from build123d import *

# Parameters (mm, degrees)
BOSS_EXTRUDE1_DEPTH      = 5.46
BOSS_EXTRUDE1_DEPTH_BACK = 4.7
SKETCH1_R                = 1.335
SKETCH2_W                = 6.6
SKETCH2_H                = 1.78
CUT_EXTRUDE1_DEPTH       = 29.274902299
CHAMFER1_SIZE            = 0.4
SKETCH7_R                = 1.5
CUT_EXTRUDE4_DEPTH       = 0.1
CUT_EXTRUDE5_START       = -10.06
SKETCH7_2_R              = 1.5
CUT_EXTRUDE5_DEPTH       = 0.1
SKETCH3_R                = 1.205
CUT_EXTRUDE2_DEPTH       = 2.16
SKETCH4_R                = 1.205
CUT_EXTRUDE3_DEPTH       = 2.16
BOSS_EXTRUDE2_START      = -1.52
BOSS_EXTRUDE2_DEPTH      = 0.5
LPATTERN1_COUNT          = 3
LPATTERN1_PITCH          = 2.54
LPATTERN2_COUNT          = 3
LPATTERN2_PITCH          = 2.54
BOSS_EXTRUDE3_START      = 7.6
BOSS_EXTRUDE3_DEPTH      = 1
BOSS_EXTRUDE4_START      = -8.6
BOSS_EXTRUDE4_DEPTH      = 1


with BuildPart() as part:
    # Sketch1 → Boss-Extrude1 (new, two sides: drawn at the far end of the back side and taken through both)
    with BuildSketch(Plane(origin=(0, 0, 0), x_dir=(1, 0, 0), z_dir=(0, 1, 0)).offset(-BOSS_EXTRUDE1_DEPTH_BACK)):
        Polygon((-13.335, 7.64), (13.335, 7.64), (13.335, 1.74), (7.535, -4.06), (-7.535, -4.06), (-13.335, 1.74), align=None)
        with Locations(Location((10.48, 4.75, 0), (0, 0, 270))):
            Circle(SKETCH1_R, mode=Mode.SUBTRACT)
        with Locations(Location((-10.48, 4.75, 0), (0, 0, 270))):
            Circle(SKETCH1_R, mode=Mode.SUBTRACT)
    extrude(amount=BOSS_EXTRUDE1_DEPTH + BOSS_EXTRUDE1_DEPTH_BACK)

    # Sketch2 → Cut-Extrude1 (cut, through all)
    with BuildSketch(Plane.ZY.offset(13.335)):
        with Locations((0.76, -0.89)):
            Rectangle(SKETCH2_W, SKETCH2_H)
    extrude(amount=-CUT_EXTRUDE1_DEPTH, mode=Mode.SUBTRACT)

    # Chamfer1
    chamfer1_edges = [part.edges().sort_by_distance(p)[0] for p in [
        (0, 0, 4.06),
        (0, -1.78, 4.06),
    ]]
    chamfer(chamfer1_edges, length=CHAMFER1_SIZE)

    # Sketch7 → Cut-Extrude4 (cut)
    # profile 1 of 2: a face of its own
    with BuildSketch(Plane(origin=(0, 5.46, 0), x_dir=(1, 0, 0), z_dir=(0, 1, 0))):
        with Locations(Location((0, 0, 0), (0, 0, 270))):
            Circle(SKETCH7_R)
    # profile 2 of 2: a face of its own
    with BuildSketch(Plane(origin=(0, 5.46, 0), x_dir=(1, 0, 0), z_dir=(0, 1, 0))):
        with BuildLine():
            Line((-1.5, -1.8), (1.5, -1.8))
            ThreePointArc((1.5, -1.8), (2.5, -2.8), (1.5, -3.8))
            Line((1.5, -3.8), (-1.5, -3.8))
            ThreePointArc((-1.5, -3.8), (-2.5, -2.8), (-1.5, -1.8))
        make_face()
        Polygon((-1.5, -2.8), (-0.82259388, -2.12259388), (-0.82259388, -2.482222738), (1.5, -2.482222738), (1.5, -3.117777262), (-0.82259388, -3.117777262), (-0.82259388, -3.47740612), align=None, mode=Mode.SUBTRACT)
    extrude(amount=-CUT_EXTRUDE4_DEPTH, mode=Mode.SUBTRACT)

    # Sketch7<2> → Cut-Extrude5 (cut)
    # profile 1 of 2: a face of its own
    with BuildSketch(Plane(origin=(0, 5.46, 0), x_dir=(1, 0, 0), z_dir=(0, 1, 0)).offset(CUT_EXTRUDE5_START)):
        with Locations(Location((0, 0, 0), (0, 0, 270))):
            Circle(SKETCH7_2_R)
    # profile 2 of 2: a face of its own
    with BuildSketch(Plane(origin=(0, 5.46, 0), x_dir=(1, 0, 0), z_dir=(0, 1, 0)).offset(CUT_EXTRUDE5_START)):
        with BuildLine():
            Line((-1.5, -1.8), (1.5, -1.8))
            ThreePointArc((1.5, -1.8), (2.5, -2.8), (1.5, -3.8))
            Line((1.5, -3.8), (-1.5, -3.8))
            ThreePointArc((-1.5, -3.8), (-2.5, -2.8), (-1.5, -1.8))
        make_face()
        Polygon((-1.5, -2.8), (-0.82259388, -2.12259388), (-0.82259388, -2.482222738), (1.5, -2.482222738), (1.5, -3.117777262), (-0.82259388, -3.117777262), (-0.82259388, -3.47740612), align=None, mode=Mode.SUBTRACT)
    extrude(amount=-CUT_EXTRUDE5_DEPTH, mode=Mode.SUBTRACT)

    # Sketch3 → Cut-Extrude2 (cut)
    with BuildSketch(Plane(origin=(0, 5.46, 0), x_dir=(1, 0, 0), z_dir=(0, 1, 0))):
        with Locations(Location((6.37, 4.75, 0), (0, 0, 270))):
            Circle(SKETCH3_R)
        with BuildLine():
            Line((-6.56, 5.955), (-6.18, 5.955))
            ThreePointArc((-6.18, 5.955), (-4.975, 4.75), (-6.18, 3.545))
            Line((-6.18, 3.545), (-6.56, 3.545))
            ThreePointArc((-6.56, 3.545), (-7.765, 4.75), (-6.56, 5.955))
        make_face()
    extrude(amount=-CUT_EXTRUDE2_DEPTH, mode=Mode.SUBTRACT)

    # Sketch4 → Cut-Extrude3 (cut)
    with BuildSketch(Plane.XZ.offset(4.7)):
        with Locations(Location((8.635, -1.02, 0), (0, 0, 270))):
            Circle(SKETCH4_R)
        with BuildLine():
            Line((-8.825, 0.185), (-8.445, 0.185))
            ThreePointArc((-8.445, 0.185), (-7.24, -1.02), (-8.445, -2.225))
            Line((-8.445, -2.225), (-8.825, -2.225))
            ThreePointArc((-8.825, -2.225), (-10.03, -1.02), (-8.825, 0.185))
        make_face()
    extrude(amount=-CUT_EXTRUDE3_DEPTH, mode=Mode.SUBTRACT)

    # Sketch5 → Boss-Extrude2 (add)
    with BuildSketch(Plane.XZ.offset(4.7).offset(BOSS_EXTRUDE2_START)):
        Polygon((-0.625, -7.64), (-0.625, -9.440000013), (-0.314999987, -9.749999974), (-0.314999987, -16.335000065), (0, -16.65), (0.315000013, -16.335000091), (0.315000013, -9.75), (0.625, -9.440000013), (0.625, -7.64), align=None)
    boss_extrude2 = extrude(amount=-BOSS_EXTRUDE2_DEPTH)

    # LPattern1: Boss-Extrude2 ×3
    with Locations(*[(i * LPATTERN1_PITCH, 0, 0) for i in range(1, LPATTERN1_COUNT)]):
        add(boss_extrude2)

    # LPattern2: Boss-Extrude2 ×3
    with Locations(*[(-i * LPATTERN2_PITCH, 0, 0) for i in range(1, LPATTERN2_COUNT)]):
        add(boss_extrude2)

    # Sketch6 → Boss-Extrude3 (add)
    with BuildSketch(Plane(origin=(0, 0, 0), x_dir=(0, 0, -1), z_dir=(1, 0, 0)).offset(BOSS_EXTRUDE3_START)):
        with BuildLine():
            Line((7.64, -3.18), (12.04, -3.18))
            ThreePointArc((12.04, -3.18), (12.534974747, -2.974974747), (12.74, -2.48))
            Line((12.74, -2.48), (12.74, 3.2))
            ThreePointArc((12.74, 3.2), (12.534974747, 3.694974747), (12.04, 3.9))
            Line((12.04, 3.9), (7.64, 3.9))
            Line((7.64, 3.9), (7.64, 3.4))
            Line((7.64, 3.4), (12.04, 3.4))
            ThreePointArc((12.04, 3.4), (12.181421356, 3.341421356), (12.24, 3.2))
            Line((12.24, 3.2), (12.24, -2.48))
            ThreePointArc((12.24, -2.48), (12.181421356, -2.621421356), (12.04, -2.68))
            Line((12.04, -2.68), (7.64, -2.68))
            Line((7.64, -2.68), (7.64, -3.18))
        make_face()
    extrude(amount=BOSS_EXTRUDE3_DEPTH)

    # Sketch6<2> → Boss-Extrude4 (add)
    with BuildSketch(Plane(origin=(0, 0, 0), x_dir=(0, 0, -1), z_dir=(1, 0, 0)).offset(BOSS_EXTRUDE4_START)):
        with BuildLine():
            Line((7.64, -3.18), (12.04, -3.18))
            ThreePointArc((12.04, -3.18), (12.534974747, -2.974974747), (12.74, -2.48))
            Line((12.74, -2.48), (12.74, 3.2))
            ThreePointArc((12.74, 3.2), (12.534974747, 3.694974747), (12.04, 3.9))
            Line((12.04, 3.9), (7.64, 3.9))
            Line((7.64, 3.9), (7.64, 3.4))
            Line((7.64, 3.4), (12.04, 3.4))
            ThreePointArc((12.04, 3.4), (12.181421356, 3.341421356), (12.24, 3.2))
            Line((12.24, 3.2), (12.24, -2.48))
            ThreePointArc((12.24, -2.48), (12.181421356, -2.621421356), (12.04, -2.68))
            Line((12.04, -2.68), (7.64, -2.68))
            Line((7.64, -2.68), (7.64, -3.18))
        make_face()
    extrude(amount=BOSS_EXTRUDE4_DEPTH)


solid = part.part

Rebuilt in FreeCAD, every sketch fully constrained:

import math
import FreeCAD as App
import Part
import Sketcher
from FreeCAD import Vector


def edges_at(feature, points):
    """Names of the edges that pass closest to the given points."""
    edges = feature.Shape.Edges
    near = lambda p: min(range(len(edges)), key=lambda i: edges[i].distToShape(Part.Vertex(*p))[0])
    return sorted({f"Edge{near(p) + 1}" for p in points})

doc = App.newDocument("Part")
body = doc.addObject("PartDesign::Body", "Body")

# Sketch on XZ plane
sketch1 = body.newObject("Sketcher::SketchObject", "Sketch")
sketch1.AttachmentSupport = (doc.getObject("XZ_Plane"), [""])
sketch1.MapMode = "FlatFace"
sketch1.addGeometry(Part.LineSegment(Vector(13.335, -7.64, 0), Vector(-13.335, -7.64, 0)), False)
sketch1.addGeometry(Part.LineSegment(Vector(-13.335, -7.64, 0), Vector(-13.335, -1.74, 0)), False)
sketch1.addGeometry(Part.LineSegment(Vector(-13.335, -1.74, 0), Vector(-7.535, 4.06, 0)), False)
sketch1.addGeometry(Part.LineSegment(Vector(-7.535, 4.06, 0), Vector(7.535, 4.06, 0)), False)
sketch1.addGeometry(Part.LineSegment(Vector(7.535, 4.06, 0), Vector(13.335, -1.74, 0)), False)
sketch1.addGeometry(Part.LineSegment(Vector(13.335, -1.74, 0), Vector(13.335, -7.64, 0)), False)
sketch1.addGeometry(Part.Circle(Vector(10.48, -4.75, 0), Vector(0, 0, 1), 1.335), False)
sketch1.addGeometry(Part.Circle(Vector(-10.48, -4.75, 0), Vector(0, 0, 1), 1.335), False)
sketch1.addConstraint(Sketcher.Constraint("Coincident", 0, 2, 1, 1))
sketch1.addConstraint(Sketcher.Constraint("Coincident", 1, 2, 2, 1))
sketch1.addConstraint(Sketcher.Constraint("Coincident", 2, 2, 3, 1))
sketch1.addConstraint(Sketcher.Constraint("Coincident", 3, 2, 4, 1))
sketch1.addConstraint(Sketcher.Constraint("Coincident", 4, 2, 5, 1))
sketch1.addConstraint(Sketcher.Constraint("Coincident", 5, 2, 0, 1))
sketch1.addConstraint(Sketcher.Constraint("Horizontal", 0))
sketch1.addConstraint(Sketcher.Constraint("Vertical", 1))
sketch1.addConstraint(Sketcher.Constraint("Horizontal", 3))
sketch1.addConstraint(Sketcher.Constraint("Vertical", 5))
sketch1.addConstraint(Sketcher.Constraint("Equal", 6, 7))
sketch1.addConstraint(Sketcher.Constraint("Symmetric", 6, 3, 7, 3, -2))
sketch1.addConstraint(Sketcher.Constraint("Symmetric", 1, 2, 4, 2, -2))
sketch1.addConstraint(Sketcher.Constraint("Perpendicular", 2, 4))
sketch1.addConstraint(Sketcher.Constraint("Equal", 2, 4))
sketch1.addConstraint(Sketcher.Constraint("Diameter", 6, 2.67))
sketch1.addConstraint(Sketcher.Constraint("DistanceY", 1, 1, 1, 2, 5.9))
sketch1.addConstraint(Sketcher.Constraint("DistanceX", 0, 2, 0, 1, 26.67))
sketch1.addConstraint(Sketcher.Constraint("DistanceX", 3, 1, 3, 2, 15.07))
sketch1.addConstraint(Sketcher.Constraint("DistanceX", -1, 1, 6, 3, 10.48))
sketch1.addConstraint(Sketcher.Constraint("DistanceY", 6, 3, -1, 1, 4.75))
sketch1.addConstraint(Sketcher.Constraint("DistanceY", 0, 2, -1, 1, 7.64))
pad1 = body.newObject("PartDesign::Pad", "Pad")
pad1.Profile = sketch1
pad1.Type = "TwoLengths"
pad1.Length = 5.46
pad1.Length2 = 4.7
pad1.Reversed = True

# Sketch on YZ plane
sketch2 = body.newObject("Sketcher::SketchObject", "Sketch001")
sketch2.AttachmentSupport = (doc.getObject("YZ_Plane"), [""])
sketch2.MapMode = "FlatFace"
sketch2.AttachmentOffset = App.Placement(Vector(0, 0, -13.335), App.Rotation())
sketch2.addGeometry(Part.LineSegment(Vector(0, -2.54, 0), Vector(-1.78, -2.54, 0)), False)
sketch2.addGeometry(Part.LineSegment(Vector(-1.78, -2.54, 0), Vector(-1.78, 4.06, 0)), False)
sketch2.addGeometry(Part.LineSegment(Vector(-1.78, 4.06, 0), Vector(0, 4.06, 0)), False)
sketch2.addGeometry(Part.LineSegment(Vector(0, 4.06, 0), Vector(0, -2.54, 0)), False)
sketch2.addConstraint(Sketcher.Constraint("Coincident", 0, 2, 1, 1))
sketch2.addConstraint(Sketcher.Constraint("Coincident", 1, 2, 2, 1))
sketch2.addConstraint(Sketcher.Constraint("Coincident", 2, 2, 3, 1))
sketch2.addConstraint(Sketcher.Constraint("Coincident", 3, 2, 0, 1))
sketch2.addConstraint(Sketcher.Constraint("Horizontal", 0))
sketch2.addConstraint(Sketcher.Constraint("Vertical", 1))
sketch2.addConstraint(Sketcher.Constraint("Horizontal", 2))
sketch2.addConstraint(Sketcher.Constraint("Vertical", 3))
sketch2.addConstraint(Sketcher.Constraint("PointOnObject", 2, 2, -2))
sketch2.addConstraint(Sketcher.Constraint("DistanceY", 1, 1, 1, 2, 6.6))
sketch2.addConstraint(Sketcher.Constraint("DistanceX", 0, 2, 0, 1, 1.78))
sketch2.addConstraint(Sketcher.Constraint("DistanceY", 0, 2, -1, 1, 2.54))
pocket1 = body.newObject("PartDesign::Pocket", "Pocket")
pocket1.Profile = sketch2
pocket1.Type = "ThroughAll"
pocket1.Reversed = True
doc.recompute()

chamfer = body.newObject("PartDesign::Chamfer", "Chamfer")
chamfer.Base = (pocket1, edges_at(pocket1, [(0, 0, 4.06), (0, -1.78, 4.06)]))
chamfer.Size = 0.4

# Sketch on XZ plane
sketch3 = body.newObject("Sketcher::SketchObject", "Sketch002")
sketch3.AttachmentSupport = (doc.getObject("XZ_Plane"), [""])
sketch3.MapMode = "FlatFace"
sketch3.AttachmentOffset = App.Placement(Vector(0, 0, -5.46), App.Rotation())
sketch3.addGeometry(Part.Circle(Vector(0, 0, 0), Vector(0, 0, 1), 1.5), False)
sketch3.addGeometry(Part.LineSegment(Vector(1.5, 1.8, 0), Vector(-1.5, 1.8, 0)), False)
sketch3.addGeometry(Part.ArcOfCircle(Part.Circle(Vector(-1.5, 2.8, 0), Vector(0, 0, 1), 1), math.radians(90), math.radians(270)), False)
sketch3.addGeometry(Part.LineSegment(Vector(-1.5, 3.8, 0), Vector(1.5, 3.8, 0)), False)
sketch3.addGeometry(Part.ArcOfCircle(Part.Circle(Vector(1.5, 2.8, 0), Vector(0, 0, 1), 1), math.radians(-90), math.radians(90)), False)
sketch3.addGeometry(Part.LineSegment(Vector(-1.5, 2.8, 0), Vector(-0.822594, 2.122594, 0)), False)
sketch3.addGeometry(Part.LineSegment(Vector(-0.822594, 2.122594, 0), Vector(-0.822594, 2.482223, 0)), False)
sketch3.addGeometry(Part.LineSegment(Vector(-0.822594, 2.482223, 0), Vector(1.5, 2.482223, 0)), False)
sketch3.addGeometry(Part.LineSegment(Vector(1.5, 2.482223, 0), Vector(1.5, 3.117777, 0)), False)
sketch3.addGeometry(Part.LineSegment(Vector(1.5, 3.117777, 0), Vector(-0.822594, 3.117777, 0)), False)
sketch3.addGeometry(Part.LineSegment(Vector(-0.822594, 3.117777, 0), Vector(-0.822594, 3.477406, 0)), False)
sketch3.addGeometry(Part.LineSegment(Vector(-0.822594, 3.477406, 0), Vector(-1.5, 2.8, 0)), False)
sketch3.addConstraint(Sketcher.Constraint("Tangent", 1, 2, 2, 2))
sketch3.addConstraint(Sketcher.Constraint("Tangent", 2, 1, 3, 1))
sketch3.addConstraint(Sketcher.Constraint("Tangent", 3, 2, 4, 2))
sketch3.addConstraint(Sketcher.Constraint("Tangent", 4, 1, 1, 1))
sketch3.addConstraint(Sketcher.Constraint("Coincident", 5, 2, 6, 1))
sketch3.addConstraint(Sketcher.Constraint("Coincident", 6, 2, 7, 1))
sketch3.addConstraint(Sketcher.Constraint("Coincident", 7, 2, 8, 1))
sketch3.addConstraint(Sketcher.Constraint("Coincident", 8, 2, 9, 1))
sketch3.addConstraint(Sketcher.Constraint("Coincident", 9, 2, 10, 1))
sketch3.addConstraint(Sketcher.Constraint("Coincident", 10, 2, 11, 1))
sketch3.addConstraint(Sketcher.Constraint("Coincident", 11, 2, 5, 1))
sketch3.addConstraint(Sketcher.Constraint("Horizontal", 1))
sketch3.addConstraint(Sketcher.Constraint("Horizontal", 3))
sketch3.addConstraint(Sketcher.Constraint("Vertical", 6))
sketch3.addConstraint(Sketcher.Constraint("Horizontal", 7))
sketch3.addConstraint(Sketcher.Constraint("Vertical", 8))
sketch3.addConstraint(Sketcher.Constraint("Horizontal", 9))
sketch3.addConstraint(Sketcher.Constraint("Vertical", 10))
sketch3.addConstraint(Sketcher.Constraint("Coincident", 0, 3, -1, 1))
sketch3.addConstraint(Sketcher.Constraint("Coincident", 11, 2, 2, 3))
sketch3.addConstraint(Sketcher.Constraint("Perpendicular", 5, 11))
sketch3.addConstraint(Sketcher.Constraint("Vertical", 4, 1, 7, 2))
sketch3.addConstraint(Sketcher.Constraint("Vertical", 6, 2, 9, 2))
sketch3.addConstraint(Sketcher.Constraint("Equal", 6, 10))
sketch3.addConstraint(Sketcher.Constraint("Equal", 5, 11))
sketch3.addConstraint(Sketcher.Constraint("Diameter", 0, 3.0))
sketch3.addConstraint(Sketcher.Constraint("Radius", 2, 1.0))
sketch3.addConstraint(Sketcher.Constraint("DistanceX", 1, 2, 1, 1, 3.0))
sketch3.addConstraint(Sketcher.Constraint("DistanceX", 2, 3, -1, 1, 1.5))
sketch3.addConstraint(Sketcher.Constraint("DistanceY", -1, 1, 2, 3, 2.8))
sketch3.addConstraint(Sketcher.Constraint("DistanceY", 6, 1, 6, 2, 0.359629))
sketch3.addConstraint(Sketcher.Constraint("DistanceX", 7, 1, 7, 2, 2.322594))
pocket2 = body.newObject("PartDesign::Pocket", "Pocket001")
pocket2.Profile = sketch3
pocket2.Length = 0.1
pocket2.Reversed = True

# Sketch on XZ plane
sketch4 = body.newObject("Sketcher::SketchObject", "Sketch003")
sketch4.AttachmentSupport = (doc.getObject("XZ_Plane"), [""])
sketch4.MapMode = "FlatFace"
sketch4.AttachmentOffset = App.Placement(Vector(0, 0, 4.6), App.Rotation())
sketch4.addGeometry(Part.Circle(Vector(0, 0, 0), Vector(0, 0, 1), 1.5), False)
sketch4.addGeometry(Part.LineSegment(Vector(1.5, 1.8, 0), Vector(-1.5, 1.8, 0)), False)
sketch4.addGeometry(Part.ArcOfCircle(Part.Circle(Vector(-1.5, 2.8, 0), Vector(0, 0, 1), 1), math.radians(90), math.radians(270)), False)
sketch4.addGeometry(Part.LineSegment(Vector(-1.5, 3.8, 0), Vector(1.5, 3.8, 0)), False)
sketch4.addGeometry(Part.ArcOfCircle(Part.Circle(Vector(1.5, 2.8, 0), Vector(0, 0, 1), 1), math.radians(-90), math.radians(90)), False)
sketch4.addGeometry(Part.LineSegment(Vector(-1.5, 2.8, 0), Vector(-0.822594, 2.122594, 0)), False)
sketch4.addGeometry(Part.LineSegment(Vector(-0.822594, 2.122594, 0), Vector(-0.822594, 2.482223, 0)), False)
sketch4.addGeometry(Part.LineSegment(Vector(-0.822594, 2.482223, 0), Vector(1.5, 2.482223, 0)), False)
sketch4.addGeometry(Part.LineSegment(Vector(1.5, 2.482223, 0), Vector(1.5, 3.117777, 0)), False)
sketch4.addGeometry(Part.LineSegment(Vector(1.5, 3.117777, 0), Vector(-0.822594, 3.117777, 0)), False)
sketch4.addGeometry(Part.LineSegment(Vector(-0.822594, 3.117777, 0), Vector(-0.822594, 3.477406, 0)), False)
sketch4.addGeometry(Part.LineSegment(Vector(-0.822594, 3.477406, 0), Vector(-1.5, 2.8, 0)), False)
sketch4.addConstraint(Sketcher.Constraint("Tangent", 1, 2, 2, 2))
sketch4.addConstraint(Sketcher.Constraint("Tangent", 2, 1, 3, 1))
sketch4.addConstraint(Sketcher.Constraint("Tangent", 3, 2, 4, 2))
sketch4.addConstraint(Sketcher.Constraint("Tangent", 4, 1, 1, 1))
sketch4.addConstraint(Sketcher.Constraint("Coincident", 5, 2, 6, 1))
sketch4.addConstraint(Sketcher.Constraint("Coincident", 6, 2, 7, 1))
sketch4.addConstraint(Sketcher.Constraint("Coincident", 7, 2, 8, 1))
sketch4.addConstraint(Sketcher.Constraint("Coincident", 8, 2, 9, 1))
sketch4.addConstraint(Sketcher.Constraint("Coincident", 9, 2, 10, 1))
sketch4.addConstraint(Sketcher.Constraint("Coincident", 10, 2, 11, 1))
sketch4.addConstraint(Sketcher.Constraint("Coincident", 11, 2, 5, 1))
sketch4.addConstraint(Sketcher.Constraint("Horizontal", 1))
sketch4.addConstraint(Sketcher.Constraint("Horizontal", 3))
sketch4.addConstraint(Sketcher.Constraint("Vertical", 6))
sketch4.addConstraint(Sketcher.Constraint("Horizontal", 7))
sketch4.addConstraint(Sketcher.Constraint("Vertical", 8))
sketch4.addConstraint(Sketcher.Constraint("Horizontal", 9))
sketch4.addConstraint(Sketcher.Constraint("Vertical", 10))
sketch4.addConstraint(Sketcher.Constraint("Coincident", 0, 3, -1, 1))
sketch4.addConstraint(Sketcher.Constraint("Coincident", 11, 2, 2, 3))
sketch4.addConstraint(Sketcher.Constraint("Perpendicular", 5, 11))
sketch4.addConstraint(Sketcher.Constraint("Vertical", 4, 1, 7, 2))
sketch4.addConstraint(Sketcher.Constraint("Vertical", 6, 2, 9, 2))
sketch4.addConstraint(Sketcher.Constraint("Equal", 6, 10))
sketch4.addConstraint(Sketcher.Constraint("Equal", 5, 11))
sketch4.addConstraint(Sketcher.Constraint("Diameter", 0, 3.0))
sketch4.addConstraint(Sketcher.Constraint("Radius", 2, 1.0))
sketch4.addConstraint(Sketcher.Constraint("DistanceX", 1, 2, 1, 1, 3.0))
sketch4.addConstraint(Sketcher.Constraint("DistanceX", 2, 3, -1, 1, 1.5))
sketch4.addConstraint(Sketcher.Constraint("DistanceY", -1, 1, 2, 3, 2.8))
sketch4.addConstraint(Sketcher.Constraint("DistanceY", 6, 1, 6, 2, 0.359629))
sketch4.addConstraint(Sketcher.Constraint("DistanceX", 7, 1, 7, 2, 2.322594))
pocket3 = body.newObject("PartDesign::Pocket", "Pocket002")
pocket3.Profile = sketch4
pocket3.Length = 0.1
pocket3.Reversed = True

# Sketch on XZ plane
sketch5 = body.newObject("Sketcher::SketchObject", "Sketch004")
sketch5.AttachmentSupport = (doc.getObject("XZ_Plane"), [""])
sketch5.MapMode = "FlatFace"
sketch5.AttachmentOffset = App.Placement(Vector(0, 0, -5.46), App.Rotation())
sketch5.addGeometry(Part.Circle(Vector(6.37, -4.75, 0), Vector(0, 0, 1), 1.205), False)
sketch5.addGeometry(Part.LineSegment(Vector(-6.18, -5.955, 0), Vector(-6.56, -5.955, 0)), False)
sketch5.addGeometry(Part.ArcOfCircle(Part.Circle(Vector(-6.56, -4.75, 0), Vector(0, 0, 1), 1.205), math.radians(90), math.radians(270)), False)
sketch5.addGeometry(Part.LineSegment(Vector(-6.56, -3.545, 0), Vector(-6.18, -3.545, 0)), False)
sketch5.addGeometry(Part.ArcOfCircle(Part.Circle(Vector(-6.18, -4.75, 0), Vector(0, 0, 1), 1.205), math.radians(-90), math.radians(90)), False)
sketch5.addConstraint(Sketcher.Constraint("Tangent", 1, 2, 2, 2))
sketch5.addConstraint(Sketcher.Constraint("Tangent", 2, 1, 3, 1))
sketch5.addConstraint(Sketcher.Constraint("Tangent", 3, 2, 4, 2))
sketch5.addConstraint(Sketcher.Constraint("Tangent", 4, 1, 1, 1))
sketch5.addConstraint(Sketcher.Constraint("Horizontal", 1))
sketch5.addConstraint(Sketcher.Constraint("Horizontal", 3))
sketch5.addConstraint(Sketcher.Constraint("Equal", 0, 2))
sketch5.addConstraint(Sketcher.Constraint("Horizontal", 0, 3, 2, 3))
sketch5.addConstraint(Sketcher.Constraint("Diameter", 0, 2.41))
sketch5.addConstraint(Sketcher.Constraint("DistanceX", 1, 2, 1, 1, 0.38))
sketch5.addConstraint(Sketcher.Constraint("DistanceX", -1, 1, 0, 3, 6.37))
sketch5.addConstraint(Sketcher.Constraint("DistanceY", 0, 3, -1, 1, 4.75))
sketch5.addConstraint(Sketcher.Constraint("DistanceX", 2, 3, -1, 1, 6.56))
pocket4 = body.newObject("PartDesign::Pocket", "Pocket003")
pocket4.Profile = sketch5
pocket4.Length = 2.16
pocket4.Reversed = True

# Sketch on XZ plane
sketch6 = body.newObject("Sketcher::SketchObject", "Sketch005")
sketch6.AttachmentSupport = (doc.getObject("XZ_Plane"), [""])
sketch6.MapMode = "FlatFace"
sketch6.AttachmentOffset = App.Placement(Vector(0, 0, 4.7), App.Rotation())
sketch6.addGeometry(Part.Circle(Vector(8.635, -1.02, 0), Vector(0, 0, 1), 1.205), False)
sketch6.addGeometry(Part.LineSegment(Vector(-8.445, 0.185, 0), Vector(-8.825, 0.185, 0)), False)
sketch6.addGeometry(Part.ArcOfCircle(Part.Circle(Vector(-8.825, -1.02, 0), Vector(0, 0, 1), 1.205), math.radians(90), math.radians(270)), False)
sketch6.addGeometry(Part.LineSegment(Vector(-8.825, -2.225, 0), Vector(-8.445, -2.225, 0)), False)
sketch6.addGeometry(Part.ArcOfCircle(Part.Circle(Vector(-8.445, -1.02, 0), Vector(0, 0, 1), 1.205), math.radians(-90), math.radians(90)), False)
sketch6.addConstraint(Sketcher.Constraint("Tangent", 1, 2, 2, 1))
sketch6.addConstraint(Sketcher.Constraint("Tangent", 2, 2, 3, 1))
sketch6.addConstraint(Sketcher.Constraint("Tangent", 3, 2, 4, 1))
sketch6.addConstraint(Sketcher.Constraint("Tangent", 4, 2, 1, 1))
sketch6.addConstraint(Sketcher.Constraint("Horizontal", 1))
sketch6.addConstraint(Sketcher.Constraint("Horizontal", 3))
sketch6.addConstraint(Sketcher.Constraint("Equal", 0, 2))
sketch6.addConstraint(Sketcher.Constraint("Horizontal", 0, 3, 2, 3))
sketch6.addConstraint(Sketcher.Constraint("Diameter", 0, 2.41))
sketch6.addConstraint(Sketcher.Constraint("DistanceX", 1, 2, 1, 1, 0.38))
sketch6.addConstraint(Sketcher.Constraint("DistanceY", 0, 3, -1, 1, 1.02))
sketch6.addConstraint(Sketcher.Constraint("DistanceX", 2, 3, 0, 3, 17.46))
sketch6.addConstraint(Sketcher.Constraint("DistanceX", -1, 1, 0, 3, 8.635))
pocket5 = body.newObject("PartDesign::Pocket", "Pocket004")
pocket5.Profile = sketch6
pocket5.Length = 2.16

# Sketch on XZ plane
sketch7 = body.newObject("Sketcher::SketchObject", "Sketch006")
sketch7.AttachmentSupport = (doc.getObject("XZ_Plane"), [""])
sketch7.MapMode = "FlatFace"
sketch7.AttachmentOffset = App.Placement(Vector(0, 0, 3.18), App.Rotation())
sketch7.addGeometry(Part.LineSegment(Vector(-0.625, -7.64, 0), Vector(-0.625, -9.44, 0)), False)
sketch7.addGeometry(Part.LineSegment(Vector(-0.625, -9.44, 0), Vector(-0.315, -9.75, 0)), False)
sketch7.addGeometry(Part.LineSegment(Vector(-0.315, -9.75, 0), Vector(-0.315, -16.335, 0)), False)
sketch7.addGeometry(Part.LineSegment(Vector(-0.315, -16.335, 0), Vector(0, -16.65, 0)), False)
sketch7.addGeometry(Part.LineSegment(Vector(0, -16.65, 0), Vector(0.315, -16.335, 0)), False)
sketch7.addGeometry(Part.LineSegment(Vector(0.315, -16.335, 0), Vector(0.315, -9.75, 0)), False)
sketch7.addGeometry(Part.LineSegment(Vector(0.315, -9.75, 0), Vector(0.625, -9.44, 0)), False)
sketch7.addGeometry(Part.LineSegment(Vector(0.625, -9.44, 0), Vector(0.625, -7.64, 0)), False)
sketch7.addGeometry(Part.LineSegment(Vector(0.625, -7.64, 0), Vector(-0.625, -7.64, 0)), False)
sketch7.addConstraint(Sketcher.Constraint("Coincident", 0, 2, 1, 1))
sketch7.addConstraint(Sketcher.Constraint("Coincident", 1, 2, 2, 1))
sketch7.addConstraint(Sketcher.Constraint("Coincident", 2, 2, 3, 1))
sketch7.addConstraint(Sketcher.Constraint("Coincident", 3, 2, 4, 1))
sketch7.addConstraint(Sketcher.Constraint("Coincident", 4, 2, 5, 1))
sketch7.addConstraint(Sketcher.Constraint("Coincident", 5, 2, 6, 1))
sketch7.addConstraint(Sketcher.Constraint("Coincident", 6, 2, 7, 1))
sketch7.addConstraint(Sketcher.Constraint("Coincident", 7, 2, 8, 1))
sketch7.addConstraint(Sketcher.Constraint("Coincident", 8, 2, 0, 1))
sketch7.addConstraint(Sketcher.Constraint("Vertical", 0))
sketch7.addConstraint(Sketcher.Constraint("Vertical", 2))
sketch7.addConstraint(Sketcher.Constraint("Vertical", 5))
sketch7.addConstraint(Sketcher.Constraint("Vertical", 7))
sketch7.addConstraint(Sketcher.Constraint("Horizontal", 8))
sketch7.addConstraint(Sketcher.Constraint("Symmetric", 2, 2, 4, 2, -2))
sketch7.addConstraint(Sketcher.Constraint("Symmetric", 0, 2, 6, 2, -2))
sketch7.addConstraint(Sketcher.Constraint("PointOnObject", 3, 2, -2))
sketch7.addConstraint(Sketcher.Constraint("Parallel", 1, 3))
sketch7.addConstraint(Sketcher.Constraint("Perpendicular", 3, 4))
sketch7.addConstraint(Sketcher.Constraint("Parallel", 4, 6))
sketch7.addConstraint(Sketcher.Constraint("DistanceY", 0, 2, 0, 1, 1.8))
sketch7.addConstraint(Sketcher.Constraint("DistanceX", 8, 2, 8, 1, 1.25))
sketch7.addConstraint(Sketcher.Constraint("DistanceY", 3, 2, 1, 2, 6.9))
sketch7.addConstraint(Sketcher.Constraint("DistanceY", 2, 2, 2, 1, 6.585))
sketch7.addConstraint(Sketcher.Constraint("DistanceY", 0, 2, -1, 1, 9.44))
pad2 = body.newObject("PartDesign::Pad", "Pad001")
pad2.Profile = sketch7
pad2.Length = 0.5
pad2.Reversed = True
doc.recompute()

linearpattern = body.newObject("PartDesign::LinearPattern", "LinearPattern")
linearpattern.Originals = [pad2]
linearpattern.Direction = (doc.getObject("X_Axis"), [""])
linearpattern.Mode = "offset"
linearpattern.Offset = 2.54
linearpattern.Occurrences = 3
body.Tip = linearpattern
doc.recompute()

linearpattern2 = body.newObject("PartDesign::LinearPattern", "LinearPattern001")
linearpattern2.Originals = [pad2]
linearpattern2.Direction = (doc.getObject("X_Axis"), [""])
linearpattern2.Mode = "offset"
linearpattern2.Offset = 2.54
linearpattern2.Occurrences = 3
linearpattern2.Reversed = True
body.Tip = linearpattern2

# Sketch on YZ plane
sketch8 = body.newObject("Sketcher::SketchObject", "Sketch007")
sketch8.AttachmentSupport = (doc.getObject("YZ_Plane"), [""])
sketch8.MapMode = "FlatFace"
sketch8.AttachmentOffset = App.Placement(Vector(0, 0, 7.6), App.Rotation())
sketch8.addGeometry(Part.LineSegment(Vector(-3.18, -7.64, 0), Vector(-3.18, -12.04, 0)), False)
sketch8.addGeometry(Part.ArcOfCircle(Part.Circle(Vector(-2.48, -12.04, 0), Vector(0, 0, 1), 0.7), math.radians(180), math.radians(270)), False)
sketch8.addGeometry(Part.LineSegment(Vector(-2.48, -12.74, 0), Vector(3.2, -12.74, 0)), False)
sketch8.addGeometry(Part.ArcOfCircle(Part.Circle(Vector(3.2, -12.04, 0), Vector(0, 0, 1), 0.7), math.radians(-90), math.radians(0)), False)
sketch8.addGeometry(Part.LineSegment(Vector(3.9, -12.04, 0), Vector(3.9, -7.64, 0)), False)
sketch8.addGeometry(Part.LineSegment(Vector(3.9, -7.64, 0), Vector(3.4, -7.64, 0)), False)
sketch8.addGeometry(Part.LineSegment(Vector(3.4, -7.64, 0), Vector(3.4, -12.04, 0)), False)
sketch8.addGeometry(Part.ArcOfCircle(Part.Circle(Vector(3.2, -12.04, 0), Vector(0, 0, 1), 0.2), math.radians(-90), math.radians(0)), False)
sketch8.addGeometry(Part.LineSegment(Vector(3.2, -12.24, 0), Vector(-2.48, -12.24, 0)), False)
sketch8.addGeometry(Part.ArcOfCircle(Part.Circle(Vector(-2.48, -12.04, 0), Vector(0, 0, 1), 0.2), math.radians(-180), math.radians(-90)), False)
sketch8.addGeometry(Part.LineSegment(Vector(-2.68, -12.04, 0), Vector(-2.68, -7.64, 0)), False)
sketch8.addGeometry(Part.LineSegment(Vector(-2.68, -7.64, 0), Vector(-3.18, -7.64, 0)), False)
sketch8.addConstraint(Sketcher.Constraint("Tangent", 0, 2, 1, 1))
sketch8.addConstraint(Sketcher.Constraint("Tangent", 1, 2, 2, 1))
sketch8.addConstraint(Sketcher.Constraint("Tangent", 2, 2, 3, 1))
sketch8.addConstraint(Sketcher.Constraint("Tangent", 3, 2, 4, 1))
sketch8.addConstraint(Sketcher.Constraint("Coincident", 4, 2, 5, 1))
sketch8.addConstraint(Sketcher.Constraint("Coincident", 5, 2, 6, 1))
sketch8.addConstraint(Sketcher.Constraint("Tangent", 6, 2, 7, 2))
sketch8.addConstraint(Sketcher.Constraint("Tangent", 7, 1, 8, 1))
sketch8.addConstraint(Sketcher.Constraint("Tangent", 8, 2, 9, 2))
sketch8.addConstraint(Sketcher.Constraint("Tangent", 9, 1, 10, 1))
sketch8.addConstraint(Sketcher.Constraint("Coincident", 10, 2, 11, 1))
sketch8.addConstraint(Sketcher.Constraint("Coincident", 11, 2, 0, 1))
sketch8.addConstraint(Sketcher.Constraint("Vertical", 0))
sketch8.addConstraint(Sketcher.Constraint("Horizontal", 2))
sketch8.addConstraint(Sketcher.Constraint("Vertical", 4))
sketch8.addConstraint(Sketcher.Constraint("Horizontal", 5))
sketch8.addConstraint(Sketcher.Constraint("Vertical", 6))
sketch8.addConstraint(Sketcher.Constraint("Horizontal", 8))
sketch8.addConstraint(Sketcher.Constraint("Vertical", 10))
sketch8.addConstraint(Sketcher.Constraint("Horizontal", 11))
sketch8.addConstraint(Sketcher.Constraint("Coincident", 7, 3, 3, 3))
sketch8.addConstraint(Sketcher.Constraint("Coincident", 9, 3, 1, 3))
sketch8.addConstraint(Sketcher.Constraint("Equal", 1, 3))
sketch8.addConstraint(Sketcher.Constraint("Horizontal", 5, 2, 10, 2))
sketch8.addConstraint(Sketcher.Constraint("Radius", 1, 0.7))
sketch8.addConstraint(Sketcher.Constraint("Radius", 7, 0.2))
sketch8.addConstraint(Sketcher.Constraint("DistanceY", 0, 2, 0, 1, 4.4))
sketch8.addConstraint(Sketcher.Constraint("DistanceX", 2, 1, 2, 2, 5.68))
sketch8.addConstraint(Sketcher.Constraint("DistanceX", -1, 1, 3, 3, 3.2))
sketch8.addConstraint(Sketcher.Constraint("DistanceY", 1, 3, -1, 1, 12.04))
pad3 = body.newObject("PartDesign::Pad", "Pad002")
pad3.Profile = sketch8
pad3.Length = 1

# Sketch on YZ plane
sketch9 = body.newObject("Sketcher::SketchObject", "Sketch008")
sketch9.AttachmentSupport = (doc.getObject("YZ_Plane"), [""])
sketch9.MapMode = "FlatFace"
sketch9.AttachmentOffset = App.Placement(Vector(0, 0, -8.6), App.Rotation())
sketch9.addGeometry(Part.LineSegment(Vector(-3.18, -7.64, 0), Vector(-3.18, -12.04, 0)), False)
sketch9.addGeometry(Part.ArcOfCircle(Part.Circle(Vector(-2.48, -12.04, 0), Vector(0, 0, 1), 0.7), math.radians(180), math.radians(270)), False)
sketch9.addGeometry(Part.LineSegment(Vector(-2.48, -12.74, 0), Vector(3.2, -12.74, 0)), False)
sketch9.addGeometry(Part.ArcOfCircle(Part.Circle(Vector(3.2, -12.04, 0), Vector(0, 0, 1), 0.7), math.radians(-90), math.radians(0)), False)
sketch9.addGeometry(Part.LineSegment(Vector(3.9, -12.04, 0), Vector(3.9, -7.64, 0)), False)
sketch9.addGeometry(Part.LineSegment(Vector(3.9, -7.64, 0), Vector(3.4, -7.64, 0)), False)
sketch9.addGeometry(Part.LineSegment(Vector(3.4, -7.64, 0), Vector(3.4, -12.04, 0)), False)
sketch9.addGeometry(Part.ArcOfCircle(Part.Circle(Vector(3.2, -12.04, 0), Vector(0, 0, 1), 0.2), math.radians(-90), math.radians(0)), False)
sketch9.addGeometry(Part.LineSegment(Vector(3.2, -12.24, 0), Vector(-2.48, -12.24, 0)), False)
sketch9.addGeometry(Part.ArcOfCircle(Part.Circle(Vector(-2.48, -12.04, 0), Vector(0, 0, 1), 0.2), math.radians(-180), math.radians(-90)), False)
sketch9.addGeometry(Part.LineSegment(Vector(-2.68, -12.04, 0), Vector(-2.68, -7.64, 0)), False)
sketch9.addGeometry(Part.LineSegment(Vector(-2.68, -7.64, 0), Vector(-3.18, -7.64, 0)), False)
sketch9.addConstraint(Sketcher.Constraint("Tangent", 0, 2, 1, 1))
sketch9.addConstraint(Sketcher.Constraint("Tangent", 1, 2, 2, 1))
sketch9.addConstraint(Sketcher.Constraint("Tangent", 2, 2, 3, 1))
sketch9.addConstraint(Sketcher.Constraint("Tangent", 3, 2, 4, 1))
sketch9.addConstraint(Sketcher.Constraint("Coincident", 4, 2, 5, 1))
sketch9.addConstraint(Sketcher.Constraint("Coincident", 5, 2, 6, 1))
sketch9.addConstraint(Sketcher.Constraint("Tangent", 6, 2, 7, 2))
sketch9.addConstraint(Sketcher.Constraint("Tangent", 7, 1, 8, 1))
sketch9.addConstraint(Sketcher.Constraint("Tangent", 8, 2, 9, 2))
sketch9.addConstraint(Sketcher.Constraint("Tangent", 9, 1, 10, 1))
sketch9.addConstraint(Sketcher.Constraint("Coincident", 10, 2, 11, 1))
sketch9.addConstraint(Sketcher.Constraint("Coincident", 11, 2, 0, 1))
sketch9.addConstraint(Sketcher.Constraint("Vertical", 0))
sketch9.addConstraint(Sketcher.Constraint("Horizontal", 2))
sketch9.addConstraint(Sketcher.Constraint("Vertical", 4))
sketch9.addConstraint(Sketcher.Constraint("Horizontal", 5))
sketch9.addConstraint(Sketcher.Constraint("Vertical", 6))
sketch9.addConstraint(Sketcher.Constraint("Horizontal", 8))
sketch9.addConstraint(Sketcher.Constraint("Vertical", 10))
sketch9.addConstraint(Sketcher.Constraint("Horizontal", 11))
sketch9.addConstraint(Sketcher.Constraint("Coincident", 7, 3, 3, 3))
sketch9.addConstraint(Sketcher.Constraint("Coincident", 9, 3, 1, 3))
sketch9.addConstraint(Sketcher.Constraint("Equal", 1, 3))
sketch9.addConstraint(Sketcher.Constraint("Horizontal", 5, 2, 10, 2))
sketch9.addConstraint(Sketcher.Constraint("Radius", 1, 0.7))
sketch9.addConstraint(Sketcher.Constraint("Radius", 7, 0.2))
sketch9.addConstraint(Sketcher.Constraint("DistanceY", 0, 2, 0, 1, 4.4))
sketch9.addConstraint(Sketcher.Constraint("DistanceX", 2, 1, 2, 2, 5.68))
sketch9.addConstraint(Sketcher.Constraint("DistanceX", -1, 1, 3, 3, 3.2))
sketch9.addConstraint(Sketcher.Constraint("DistanceY", 1, 3, -1, 1, 12.04))
pad4 = body.newObject("PartDesign::Pad", "Pad003")
pad4.Profile = sketch9
pad4.Length = 1

doc.recompute()
